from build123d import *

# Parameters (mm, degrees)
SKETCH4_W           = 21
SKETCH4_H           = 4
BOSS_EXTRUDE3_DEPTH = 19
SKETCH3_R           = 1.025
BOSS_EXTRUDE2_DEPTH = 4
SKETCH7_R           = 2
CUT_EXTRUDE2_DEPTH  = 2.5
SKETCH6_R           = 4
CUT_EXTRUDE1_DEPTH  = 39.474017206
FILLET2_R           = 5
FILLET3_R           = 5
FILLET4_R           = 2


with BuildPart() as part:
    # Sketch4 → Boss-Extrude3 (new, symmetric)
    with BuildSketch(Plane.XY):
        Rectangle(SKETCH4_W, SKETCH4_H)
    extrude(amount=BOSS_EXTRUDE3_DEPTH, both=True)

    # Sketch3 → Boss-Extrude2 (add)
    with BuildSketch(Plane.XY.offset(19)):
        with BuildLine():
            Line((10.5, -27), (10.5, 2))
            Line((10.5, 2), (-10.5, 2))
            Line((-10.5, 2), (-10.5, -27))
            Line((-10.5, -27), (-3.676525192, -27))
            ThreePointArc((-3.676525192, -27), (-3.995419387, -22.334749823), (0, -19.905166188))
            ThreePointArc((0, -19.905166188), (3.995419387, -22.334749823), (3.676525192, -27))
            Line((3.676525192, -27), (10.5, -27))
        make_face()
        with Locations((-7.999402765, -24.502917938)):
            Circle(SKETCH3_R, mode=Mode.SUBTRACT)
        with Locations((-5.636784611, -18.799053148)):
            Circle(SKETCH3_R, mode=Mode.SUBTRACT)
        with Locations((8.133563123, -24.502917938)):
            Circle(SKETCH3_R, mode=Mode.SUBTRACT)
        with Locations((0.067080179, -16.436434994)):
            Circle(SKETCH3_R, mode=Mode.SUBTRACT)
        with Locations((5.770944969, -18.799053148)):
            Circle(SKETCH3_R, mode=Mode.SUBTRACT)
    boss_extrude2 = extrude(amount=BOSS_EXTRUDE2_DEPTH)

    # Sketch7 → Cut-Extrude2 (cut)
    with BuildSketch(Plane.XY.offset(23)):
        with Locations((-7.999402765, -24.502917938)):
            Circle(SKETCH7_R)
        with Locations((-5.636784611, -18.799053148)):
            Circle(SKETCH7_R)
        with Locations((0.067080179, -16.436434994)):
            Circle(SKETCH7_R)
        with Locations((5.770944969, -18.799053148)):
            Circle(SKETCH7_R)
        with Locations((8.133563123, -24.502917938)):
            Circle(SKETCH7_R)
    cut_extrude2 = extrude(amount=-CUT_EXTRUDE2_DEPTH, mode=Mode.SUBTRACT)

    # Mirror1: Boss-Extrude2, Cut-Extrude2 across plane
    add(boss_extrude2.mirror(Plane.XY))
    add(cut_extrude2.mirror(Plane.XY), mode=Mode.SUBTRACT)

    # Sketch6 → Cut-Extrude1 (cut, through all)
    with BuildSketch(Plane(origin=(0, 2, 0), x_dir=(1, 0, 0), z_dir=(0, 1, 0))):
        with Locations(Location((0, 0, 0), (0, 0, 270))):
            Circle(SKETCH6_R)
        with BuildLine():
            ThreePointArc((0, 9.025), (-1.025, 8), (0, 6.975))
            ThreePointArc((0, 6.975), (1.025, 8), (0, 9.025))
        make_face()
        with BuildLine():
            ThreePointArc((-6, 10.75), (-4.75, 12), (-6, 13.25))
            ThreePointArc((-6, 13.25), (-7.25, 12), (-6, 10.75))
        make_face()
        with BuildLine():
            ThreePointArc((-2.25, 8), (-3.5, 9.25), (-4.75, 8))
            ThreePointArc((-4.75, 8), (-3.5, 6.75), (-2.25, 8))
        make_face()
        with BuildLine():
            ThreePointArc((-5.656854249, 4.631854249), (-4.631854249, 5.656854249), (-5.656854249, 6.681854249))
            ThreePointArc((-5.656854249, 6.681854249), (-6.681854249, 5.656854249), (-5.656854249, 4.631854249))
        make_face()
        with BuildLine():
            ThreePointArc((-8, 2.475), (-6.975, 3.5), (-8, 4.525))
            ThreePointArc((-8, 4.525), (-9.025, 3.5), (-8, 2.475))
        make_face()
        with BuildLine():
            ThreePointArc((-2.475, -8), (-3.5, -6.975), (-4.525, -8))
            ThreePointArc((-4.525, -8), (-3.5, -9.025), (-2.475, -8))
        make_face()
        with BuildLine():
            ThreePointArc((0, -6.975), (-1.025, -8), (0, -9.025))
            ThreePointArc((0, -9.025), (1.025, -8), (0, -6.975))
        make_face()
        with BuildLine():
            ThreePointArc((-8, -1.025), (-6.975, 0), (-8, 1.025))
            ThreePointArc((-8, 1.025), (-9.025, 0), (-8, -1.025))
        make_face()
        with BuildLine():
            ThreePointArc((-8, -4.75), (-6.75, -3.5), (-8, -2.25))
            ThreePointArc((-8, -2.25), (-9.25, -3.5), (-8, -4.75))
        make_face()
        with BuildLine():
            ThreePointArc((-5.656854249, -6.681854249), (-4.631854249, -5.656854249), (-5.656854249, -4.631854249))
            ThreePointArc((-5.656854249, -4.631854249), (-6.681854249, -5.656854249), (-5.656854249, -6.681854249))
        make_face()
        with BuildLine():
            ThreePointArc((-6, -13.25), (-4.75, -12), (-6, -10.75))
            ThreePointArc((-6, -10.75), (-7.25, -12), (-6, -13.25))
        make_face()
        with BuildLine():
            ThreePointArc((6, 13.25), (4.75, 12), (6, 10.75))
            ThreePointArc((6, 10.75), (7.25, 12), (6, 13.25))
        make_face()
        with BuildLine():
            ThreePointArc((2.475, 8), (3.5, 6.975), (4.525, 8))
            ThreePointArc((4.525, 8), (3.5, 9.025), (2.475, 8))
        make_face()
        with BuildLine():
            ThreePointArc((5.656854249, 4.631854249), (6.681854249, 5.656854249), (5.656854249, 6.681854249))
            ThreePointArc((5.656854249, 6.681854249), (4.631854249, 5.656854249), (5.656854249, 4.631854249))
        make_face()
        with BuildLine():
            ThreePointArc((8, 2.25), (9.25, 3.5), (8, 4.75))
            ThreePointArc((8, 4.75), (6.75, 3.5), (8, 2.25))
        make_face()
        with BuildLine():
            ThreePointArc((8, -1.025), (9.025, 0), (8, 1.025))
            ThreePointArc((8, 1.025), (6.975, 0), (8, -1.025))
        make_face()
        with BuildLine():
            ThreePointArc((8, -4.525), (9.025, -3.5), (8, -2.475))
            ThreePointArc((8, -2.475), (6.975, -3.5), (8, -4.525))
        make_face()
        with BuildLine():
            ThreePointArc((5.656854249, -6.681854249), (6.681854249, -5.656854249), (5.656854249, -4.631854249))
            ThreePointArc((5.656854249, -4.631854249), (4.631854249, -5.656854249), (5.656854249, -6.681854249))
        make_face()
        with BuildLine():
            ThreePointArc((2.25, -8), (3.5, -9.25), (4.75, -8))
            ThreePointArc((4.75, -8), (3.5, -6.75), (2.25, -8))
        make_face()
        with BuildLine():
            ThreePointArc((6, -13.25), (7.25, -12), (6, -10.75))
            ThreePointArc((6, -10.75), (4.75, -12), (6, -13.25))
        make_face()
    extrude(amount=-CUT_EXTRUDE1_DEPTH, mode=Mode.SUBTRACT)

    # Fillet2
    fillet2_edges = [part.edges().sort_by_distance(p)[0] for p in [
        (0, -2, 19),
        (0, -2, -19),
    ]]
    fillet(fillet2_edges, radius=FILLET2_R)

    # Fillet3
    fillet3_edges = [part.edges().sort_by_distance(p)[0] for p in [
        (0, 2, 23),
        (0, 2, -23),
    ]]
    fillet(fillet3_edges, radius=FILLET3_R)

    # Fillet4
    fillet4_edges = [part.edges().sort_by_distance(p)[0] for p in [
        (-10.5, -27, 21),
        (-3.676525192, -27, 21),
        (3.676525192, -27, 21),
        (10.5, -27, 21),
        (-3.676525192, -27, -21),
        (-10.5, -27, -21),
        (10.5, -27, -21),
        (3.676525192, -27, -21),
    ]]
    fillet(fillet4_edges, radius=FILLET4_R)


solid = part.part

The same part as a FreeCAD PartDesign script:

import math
import FreeCAD as App
import Part
import Sketcher
Q = App.Units.Quantity


def edges_at(feature, points):
    """Names of the edges that pass closest to the given points."""
    edges = feature.Shape.Edges
    near = lambda p: min(range(len(edges)), key=lambda i: edges[i].distToShape(Part.Vertex(*p))[0])
    return sorted({f"Edge{near(p) + 1}" for p in points})


def add_polygon(sketch, points):
    """Adds a closed chain of lines whose ends are joined by coincident constraints."""
    first, n = sketch.GeometryCount, len(points)
    for a, b in zip(points, points[1:] + points[:1]):
        sketch.addGeometry(Part.LineSegment(App.Vector(*a, 0), App.Vector(*b, 0)), False)
    for i in range(n):
        sketch.addConstraint(Sketcher.Constraint("Coincident", first + i, 2, first + (i + 1) % n, 1))

doc = App.newDocument("Part")
body = doc.addObject("PartDesign::Body", "Body")

sketch1 = doc.addObject("Sketcher::SketchObject", "Sketch")
body.addObject(sketch1)
sketch1.AttachmentSupport = (doc.XY_Plane, [""])
sketch1.MapMode = "FlatFace"
add_polygon(sketch1, [(-10.5, 2), (-10.5, -2), (10.5, -2), (10.5, 2)])
sketch1.addConstraint([
    Sketcher.Constraint("Vertical", 0),
    Sketcher.Constraint("Horizontal", 1),
    Sketcher.Constraint("Vertical", 2),
    Sketcher.Constraint("Horizontal", 3),
    Sketcher.Constraint("Symmetric", 0, 2, 2, 2, -1, 1),
    Sketcher.Constraint("DistanceX", 1, 1, 1, 2, Q("21 mm")),
    Sketcher.Constraint("DistanceY", 0, 2, 0, 1, Q("4 mm")),
])
pad1 = doc.addObject("PartDesign::Pad", "Pad")
body.addObject(pad1)
pad1.Profile = sketch1
pad1.Length = 38
pad1.Midplane = True

sketch2 = doc.addObject("Sketcher::SketchObject", "Sketch001")
body.addObject(sketch2)
sketch2.AttachmentSupport = (doc.XY_Plane, [""])
sketch2.MapMode = "FlatFace"
sketch2.AttachmentOffset = App.Placement(App.Vector(0, 0, 19), App.Rotation())
sketch2.addGeometry([
    Part.LineSegment(App.Vector(10.5, -27, 0), App.Vector(10.5, 2, 0)),
    Part.LineSegment(App.Vector(10.5, 2, 0), App.Vector(-10.5, 2, 0)),
    Part.LineSegment(App.Vector(-10.5, 2, 0), App.Vector(-10.5, -27, 0)),
    Part.LineSegment(App.Vector(-10.5, -27, 0), App.Vector(-3.7, -27, 0)),
    Part.ArcOfCircle(Part.Circle(App.Vector(0, -24.4, 0), App.Vector(0, 0, 1), 4.5), math.radians(90), math.radians(215)),
    Part.ArcOfCircle(Part.Circle(App.Vector(0, -24.4, 0), App.Vector(0, 0, 1), 4.5), math.radians(-35), math.radians(90)),
    Part.LineSegment(App.Vector(3.7, -27, 0), App.Vector(10.5, -27, 0)),
    Part.Circle(App.Vector(-8, -24.5, 0), App.Vector(0, 0, 1), 1),
    Part.Circle(App.Vector(8.1, -24.5, 0), App.Vector(0, 0, 1), 1),
    Part.Circle(App.Vector(-5.6, -18.8, 0), App.Vector(0, 0, 1), 1),
    Part.Circle(App.Vector(5.8, -18.8, 0), App.Vector(0, 0, 1), 1),
    Part.Circle(App.Vector(0.1, -16.4, 0), App.Vector(0, 0, 1), 1),
], False)
sketch2.addConstraint([
    Sketcher.Constraint("Coincident", 0, 2, 1, 1),
    Sketcher.Constraint("Coincident", 1, 2, 2, 1),
    Sketcher.Constraint("Coincident", 2, 2, 3, 1),
    Sketcher.Constraint("Coincident", 3, 2, 4, 2),
    Sketcher.Constraint("Tangent", 4, 1, 5, 2),
    Sketcher.Constraint("Coincident", 5, 1, 6, 1),
    Sketcher.Constraint("Coincident", 6, 2, 0, 1),
    Sketcher.Constraint("Vertical", 0),
    Sketcher.Constraint("Horizontal", 1),
    Sketcher.Constraint("Vertical", 2),
    Sketcher.Constraint("Horizontal", 3),
    Sketcher.Constraint("Horizontal", 6),
    Sketcher.Constraint("Equal", 4, 5),
    Sketcher.Constraint("Equal", 7, 8),
    Sketcher.Constraint("Equal", 8, 9),
    Sketcher.Constraint("Equal", 9, 10),
    Sketcher.Constraint("Equal", 10, 11),
    Sketcher.Constraint("Symmetric", 3, 2, 5, 1, -2),
    Sketcher.Constraint("PointOnObject", 4, 1, -2),
    Sketcher.Constraint("Horizontal", 7, 3, 8, 3),
    Sketcher.Constraint("Horizontal", 9, 3, 10, 3),
    Sketcher.Constraint("Equal", 3, 6),
    Sketcher.Constraint("Radius", 4, Q("4.5 mm")),
    Sketcher.Constraint("Diameter", 7, Q("2.05 mm")),
    Sketcher.Constraint("DistanceX", 1, 2, 1, 1, Q("21 mm")),
    Sketcher.Constraint("DistanceY", 0, 1, 0, 2, Q("29 mm")),
    Sketcher.Constraint("DistanceY", -1, 1, 0, 2, Q("2 mm")),
    Sketcher.Constraint("DistanceX", 3, 1, 3, 2, Q("6.823475 mm")),
    Sketcher.Constraint("DistanceX", -1, 1, 11, 3, Q("0.06708 mm")),
    Sketcher.Constraint("DistanceY", 7, 3, 4, 3, Q("0.097752 mm")),
    Sketcher.Constraint("DistanceX", 7, 3, 9, 3, Q("2.362618 mm")),
    Sketcher.Constraint("DistanceX", 10, 3, 8, 3, Q("2.362618 mm")),
    Sketcher.Constraint("DistanceX", 9, 3, 10, 3, Q("11.40773 mm")),
    Sketcher.Constraint("DistanceY", 10, 3, 11, 3, Q("2.362618 mm")),
    Sketcher.Constraint("DistanceY", 4, 3, 11, 3, Q("7.968731 mm")),
    Sketcher.Constraint("DistanceX", 9, 3, 3, 2, Q("1.960259 mm")),
])
pad2 = doc.addObject("PartDesign::Pad", "Pad001")
body.addObject(pad2)
pad2.Profile = sketch2
pad2.Length = 4

sketch3 = doc.addObject("Sketcher::SketchObject", "Sketch002")
body.addObject(sketch3)
sketch3.AttachmentSupport = (doc.XY_Plane, [""])
sketch3.MapMode = "FlatFace"
sketch3.AttachmentOffset = App.Placement(App.Vector(0, 0, 23), App.Rotation())
sketch3.addGeometry([
    Part.Circle(App.Vector(-8, -24.5, 0), App.Vector(0, 0, 1), 2),
    Part.Circle(App.Vector(-5.6, -18.8, 0), App.Vector(0, 0, 1), 2),
    Part.Circle(App.Vector(0.1, -16.4, 0), App.Vector(0, 0, 1), 2),
    Part.Circle(App.Vector(5.8, -18.8, 0), App.Vector(0, 0, 1), 2),
    Part.Circle(App.Vector(8.1, -24.5, 0), App.Vector(0, 0, 1), 2),
], False)
sketch3.addConstraint([
    Sketcher.Constraint("Equal", 0, 1),
    Sketcher.Constraint("Equal", 1, 2),
    Sketcher.Constraint("Equal", 2, 3),
    Sketcher.Constraint("Equal", 3, 4),
    Sketcher.Constraint("Horizontal", 1, 3, 3, 3),
    Sketcher.Constraint("Horizontal", 0, 3, 4, 3),
    Sketcher.Constraint("Diameter", 0, Q("4 mm")),
    Sketcher.Constraint("DistanceX", -1, 1, 2, 3, Q("0.06708 mm")),
    Sketcher.Constraint("DistanceX", 0, 3, 1, 3, Q("2.362618 mm")),
    Sketcher.Constraint("DistanceY", 1, 3, 2, 3, Q("2.362618 mm")),
    Sketcher.Constraint("DistanceX", 1, 3, 3, 3, Q("11.40773 mm")),
    Sketcher.Constraint("DistanceX", 3, 3, 4, 3, Q("2.362618 mm")),
    Sketcher.Constraint("DistanceX", 0, 3, -1, 1, Q("7.999403 mm")),
    Sketcher.Constraint("DistanceY", 0, 3, -1, 1, Q("24.502918 mm")),
    Sketcher.Constraint("DistanceY", 1, 3, -1, 1, Q("18.799053 mm")),
])
pocket1 = doc.addObject("PartDesign::Pocket", "Pocket")
body.addObject(pocket1)
pocket1.Profile = sketch3
pocket1.Length = 2.5
doc.recompute()

mirrored = doc.addObject("PartDesign::Mirrored", "Mirrored")
body.addObject(mirrored)
mirrored.Originals = [pad2, pocket1]
mirrored.MirrorPlane = (doc.XY_Plane, [""])
body.Tip = mirrored

sketch4 = doc.addObject("Sketcher::SketchObject", "Sketch003")
body.addObject(sketch4)
sketch4.AttachmentSupport = (doc.XZ_Plane, [""])
sketch4.MapMode = "FlatFace"
sketch4.AttachmentOffset = App.Placement(App.Vector(0, 0, -2), App.Rotation())
sketch4.addGeometry([
    Part.Circle(App.Vector(0, 0, 0), App.Vector(0, 0, 1), 4),
    Part.Circle(App.Vector(0, -8, 0), App.Vector(0, 0, 1), 1),
    Part.Circle(App.Vector(-6, -12, 0), App.Vector(0, 0, 1), 1.2),
    Part.Circle(App.Vector(-3.5, -8, 0), App.Vector(0, 0, 1), 1.2),
    Part.Circle(App.Vector(-5.7, -5.7, 0), App.Vector(0, 0, 1), 1),
    Part.Circle(App.Vector(-8, -3.5, 0), App.Vector(0, 0, 1), 1),
    Part.Circle(App.Vector(-3.5, 8, 0), App.Vector(0, 0, 1), 1),
    Part.Circle(App.Vector(0, 8, 0), App.Vector(0, 0, 1), 1),
    Part.Circle(App.Vector(-8, 0, 0), App.Vector(0, 0, 1), 1),
    Part.Circle(App.Vector(-8, 3.5, 0), App.Vector(0, 0, 1), 1.2),
    Part.Circle(App.Vector(-5.7, 5.7, 0), App.Vector(0, 0, 1), 1),
    Part.Circle(App.Vector(-6, 12, 0), App.Vector(0, 0, 1), 1.2),
    Part.Circle(App.Vector(6, -12, 0), App.Vector(0, 0, 1), 1.2),
    Part.Circle(App.Vector(3.5, -8, 0), App.Vector(0, 0, 1), 1),
    Part.Circle(App.Vector(5.7, -5.7, 0), App.Vector(0, 0, 1), 1),
    Part.Circle(App.Vector(8, -3.5, 0), App.Vector(0, 0, 1), 1.2),
    Part.Circle(App.Vector(8, 0, 0), App.Vector(0, 0, 1), 1),
    Part.Circle(App.Vector(8, 3.5, 0), App.Vector(0, 0, 1), 1),
    Part.Circle(App.Vector(5.7, 5.7, 0), App.Vector(0, 0, 1), 1),
    Part.Circle(App.Vector(3.5, 8, 0), App.Vector(0, 0, 1), 1.2),
    Part.Circle(App.Vector(6, 12, 0), App.Vector(0, 0, 1), 1.2),
], False)
sketch4.addConstraint([
    Sketcher.Constraint("Coincident", 0, 3, -1, 1),
    Sketcher.Constraint("Equal", 2, 3),
    Sketcher.Constraint("Equal", 1, 4),
    Sketcher.Constraint("Equal", 4, 5),
    Sketcher.Constraint("Equal", 5, 6),
    Sketcher.Constraint("Equal", 6, 7),
    Sketcher.Constraint("Equal", 7, 8),
    Sketcher.Constraint("Equal", 3, 9),
    Sketcher.Constraint("Equal", 8, 10),
    Sketcher.Constraint("Equal", 9, 11),
    Sketcher.Constraint("Equal", 11, 12),
    Sketcher.Constraint("Equal", 10, 13),
    Sketcher.Constraint("Equal", 13, 14),
    Sketcher.Constraint("Equal", 12, 15),
    Sketcher.Constraint("Equal", 14, 16),
    Sketcher.Constraint("Equal", 16, 17),
    Sketcher.Constraint("Equal", 17, 18),
    Sketcher.Constraint("Equal", 15, 19),
    Sketcher.Constraint("Equal", 19, 20),
    Sketcher.Constraint("Symmetric", 1, 3, 7, 3, -1, 1),
    Sketcher.Constraint("Symmetric", 11, 3, 12, 3, -1, 1),
    Sketcher.Constraint("Symmetric", 6, 3, 13, 3, -1, 1),
    Sketcher.Constraint("Symmetric", 10, 3, 14, 3, -1, 1),
    Sketcher.Constraint("Symmetric", 9, 3, 15, 3, -1, 1),
    Sketcher.Constraint("Symmetric", 8, 3, 16, 3, -1, 1),
    Sketcher.Constraint("Symmetric", 5, 3, 17, 3, -1, 1),
    Sketcher.Constraint("Symmetric", 4, 3, 18, 3, -1, 1),
    Sketcher.Constraint("Symmetric", 3, 3, 19, 3, -1, 1),
    Sketcher.Constraint("Symmetric", 2, 3, 20, 3, -1, 1),
    Sketcher.Constraint("Symmetric", 2, 3, 12, 3, -2),
    Sketcher.Constraint("Symmetric", 3, 3, 13, 3, -2),
    Sketcher.Constraint("Symmetric", 4, 3, 14, 3, -2),
    Sketcher.Constraint("Symmetric", 5, 3, 15, 3, -2),
    Sketcher.Constraint("PointOnObject", 1, 3, -2),
    Sketcher.Constraint("PointOnObject", 8, 3, -1),
    Sketcher.Constraint("Horizontal", 1, 3, 3, 3),
    Sketcher.Constraint("Vertical", 5, 3, 8, 3),
    Sketcher.Constraint("Diameter", 0, Q("8 mm")),
    Sketcher.Constraint("Diameter", 2, Q("2.5 mm")),
    Sketcher.Constraint("Diameter", 1, Q("2.05 mm")),
    Sketcher.Constraint("DistanceY", 1, 3, -1, 1, Q("8 mm")),
    Sketcher.Constraint("DistanceX", 2, 3, -1, 1, Q("6 mm")),
    Sketcher.Constraint("DistanceY", 2, 3, -1, 1, Q("12 mm")),
    Sketcher.Constraint("DistanceX", 5, 3, -1, 1, Q("8 mm")),
    Sketcher.Constraint("DistanceY", 5, 3, 9, 3, Q("7 mm")),
    Sketcher.Constraint("DistanceX", 3, 3, 13, 3, Q("7 mm")),
    Sketcher.Constraint("DistanceX", 4, 3, -1, 1, Q("5.656854 mm")),
    Sketcher.Constraint("DistanceY", 4, 3, -1, 1, Q("5.656854 mm")),
])
pocket2 = doc.addObject("PartDesign::Pocket", "Pocket001")
body.addObject(pocket2)
pocket2.Profile = sketch4
pocket2.Type = "ThroughAll"
pocket2.Reversed = True
doc.recompute()

fillet = doc.addObject("PartDesign::Fillet", "Fillet")
body.addObject(fillet)
fillet.Base = (pocket2, edges_at(pocket2, [(0, -2, 19), (0, -2, -19)]))
fillet.Radius = 5
doc.recompute()

fillet2 = doc.addObject("PartDesign::Fillet", "Fillet001")
body.addObject(fillet2)
fillet2.Base = (fillet, edges_at(fillet, [(0, 2, 23), (0, 2, -23)]))
fillet2.Radius = 5
doc.recompute()

fillet3 = doc.addObject("PartDesign::Fillet", "Fillet002")
body.addObject(fillet3)
fillet3.Base = (fillet2, edges_at(fillet2, [
    (-10.5, -27, 21),
    (-3.677, -27, 21),
    (3.677, -27, 21),
    (10.5, -27, 21),
    (-3.677, -27, -21),
    (-10.5, -27, -21),
    (10.5, -27, -21),
    (3.677, -27, -21),
]))
fillet3.Radius = 2

doc.recompute()
